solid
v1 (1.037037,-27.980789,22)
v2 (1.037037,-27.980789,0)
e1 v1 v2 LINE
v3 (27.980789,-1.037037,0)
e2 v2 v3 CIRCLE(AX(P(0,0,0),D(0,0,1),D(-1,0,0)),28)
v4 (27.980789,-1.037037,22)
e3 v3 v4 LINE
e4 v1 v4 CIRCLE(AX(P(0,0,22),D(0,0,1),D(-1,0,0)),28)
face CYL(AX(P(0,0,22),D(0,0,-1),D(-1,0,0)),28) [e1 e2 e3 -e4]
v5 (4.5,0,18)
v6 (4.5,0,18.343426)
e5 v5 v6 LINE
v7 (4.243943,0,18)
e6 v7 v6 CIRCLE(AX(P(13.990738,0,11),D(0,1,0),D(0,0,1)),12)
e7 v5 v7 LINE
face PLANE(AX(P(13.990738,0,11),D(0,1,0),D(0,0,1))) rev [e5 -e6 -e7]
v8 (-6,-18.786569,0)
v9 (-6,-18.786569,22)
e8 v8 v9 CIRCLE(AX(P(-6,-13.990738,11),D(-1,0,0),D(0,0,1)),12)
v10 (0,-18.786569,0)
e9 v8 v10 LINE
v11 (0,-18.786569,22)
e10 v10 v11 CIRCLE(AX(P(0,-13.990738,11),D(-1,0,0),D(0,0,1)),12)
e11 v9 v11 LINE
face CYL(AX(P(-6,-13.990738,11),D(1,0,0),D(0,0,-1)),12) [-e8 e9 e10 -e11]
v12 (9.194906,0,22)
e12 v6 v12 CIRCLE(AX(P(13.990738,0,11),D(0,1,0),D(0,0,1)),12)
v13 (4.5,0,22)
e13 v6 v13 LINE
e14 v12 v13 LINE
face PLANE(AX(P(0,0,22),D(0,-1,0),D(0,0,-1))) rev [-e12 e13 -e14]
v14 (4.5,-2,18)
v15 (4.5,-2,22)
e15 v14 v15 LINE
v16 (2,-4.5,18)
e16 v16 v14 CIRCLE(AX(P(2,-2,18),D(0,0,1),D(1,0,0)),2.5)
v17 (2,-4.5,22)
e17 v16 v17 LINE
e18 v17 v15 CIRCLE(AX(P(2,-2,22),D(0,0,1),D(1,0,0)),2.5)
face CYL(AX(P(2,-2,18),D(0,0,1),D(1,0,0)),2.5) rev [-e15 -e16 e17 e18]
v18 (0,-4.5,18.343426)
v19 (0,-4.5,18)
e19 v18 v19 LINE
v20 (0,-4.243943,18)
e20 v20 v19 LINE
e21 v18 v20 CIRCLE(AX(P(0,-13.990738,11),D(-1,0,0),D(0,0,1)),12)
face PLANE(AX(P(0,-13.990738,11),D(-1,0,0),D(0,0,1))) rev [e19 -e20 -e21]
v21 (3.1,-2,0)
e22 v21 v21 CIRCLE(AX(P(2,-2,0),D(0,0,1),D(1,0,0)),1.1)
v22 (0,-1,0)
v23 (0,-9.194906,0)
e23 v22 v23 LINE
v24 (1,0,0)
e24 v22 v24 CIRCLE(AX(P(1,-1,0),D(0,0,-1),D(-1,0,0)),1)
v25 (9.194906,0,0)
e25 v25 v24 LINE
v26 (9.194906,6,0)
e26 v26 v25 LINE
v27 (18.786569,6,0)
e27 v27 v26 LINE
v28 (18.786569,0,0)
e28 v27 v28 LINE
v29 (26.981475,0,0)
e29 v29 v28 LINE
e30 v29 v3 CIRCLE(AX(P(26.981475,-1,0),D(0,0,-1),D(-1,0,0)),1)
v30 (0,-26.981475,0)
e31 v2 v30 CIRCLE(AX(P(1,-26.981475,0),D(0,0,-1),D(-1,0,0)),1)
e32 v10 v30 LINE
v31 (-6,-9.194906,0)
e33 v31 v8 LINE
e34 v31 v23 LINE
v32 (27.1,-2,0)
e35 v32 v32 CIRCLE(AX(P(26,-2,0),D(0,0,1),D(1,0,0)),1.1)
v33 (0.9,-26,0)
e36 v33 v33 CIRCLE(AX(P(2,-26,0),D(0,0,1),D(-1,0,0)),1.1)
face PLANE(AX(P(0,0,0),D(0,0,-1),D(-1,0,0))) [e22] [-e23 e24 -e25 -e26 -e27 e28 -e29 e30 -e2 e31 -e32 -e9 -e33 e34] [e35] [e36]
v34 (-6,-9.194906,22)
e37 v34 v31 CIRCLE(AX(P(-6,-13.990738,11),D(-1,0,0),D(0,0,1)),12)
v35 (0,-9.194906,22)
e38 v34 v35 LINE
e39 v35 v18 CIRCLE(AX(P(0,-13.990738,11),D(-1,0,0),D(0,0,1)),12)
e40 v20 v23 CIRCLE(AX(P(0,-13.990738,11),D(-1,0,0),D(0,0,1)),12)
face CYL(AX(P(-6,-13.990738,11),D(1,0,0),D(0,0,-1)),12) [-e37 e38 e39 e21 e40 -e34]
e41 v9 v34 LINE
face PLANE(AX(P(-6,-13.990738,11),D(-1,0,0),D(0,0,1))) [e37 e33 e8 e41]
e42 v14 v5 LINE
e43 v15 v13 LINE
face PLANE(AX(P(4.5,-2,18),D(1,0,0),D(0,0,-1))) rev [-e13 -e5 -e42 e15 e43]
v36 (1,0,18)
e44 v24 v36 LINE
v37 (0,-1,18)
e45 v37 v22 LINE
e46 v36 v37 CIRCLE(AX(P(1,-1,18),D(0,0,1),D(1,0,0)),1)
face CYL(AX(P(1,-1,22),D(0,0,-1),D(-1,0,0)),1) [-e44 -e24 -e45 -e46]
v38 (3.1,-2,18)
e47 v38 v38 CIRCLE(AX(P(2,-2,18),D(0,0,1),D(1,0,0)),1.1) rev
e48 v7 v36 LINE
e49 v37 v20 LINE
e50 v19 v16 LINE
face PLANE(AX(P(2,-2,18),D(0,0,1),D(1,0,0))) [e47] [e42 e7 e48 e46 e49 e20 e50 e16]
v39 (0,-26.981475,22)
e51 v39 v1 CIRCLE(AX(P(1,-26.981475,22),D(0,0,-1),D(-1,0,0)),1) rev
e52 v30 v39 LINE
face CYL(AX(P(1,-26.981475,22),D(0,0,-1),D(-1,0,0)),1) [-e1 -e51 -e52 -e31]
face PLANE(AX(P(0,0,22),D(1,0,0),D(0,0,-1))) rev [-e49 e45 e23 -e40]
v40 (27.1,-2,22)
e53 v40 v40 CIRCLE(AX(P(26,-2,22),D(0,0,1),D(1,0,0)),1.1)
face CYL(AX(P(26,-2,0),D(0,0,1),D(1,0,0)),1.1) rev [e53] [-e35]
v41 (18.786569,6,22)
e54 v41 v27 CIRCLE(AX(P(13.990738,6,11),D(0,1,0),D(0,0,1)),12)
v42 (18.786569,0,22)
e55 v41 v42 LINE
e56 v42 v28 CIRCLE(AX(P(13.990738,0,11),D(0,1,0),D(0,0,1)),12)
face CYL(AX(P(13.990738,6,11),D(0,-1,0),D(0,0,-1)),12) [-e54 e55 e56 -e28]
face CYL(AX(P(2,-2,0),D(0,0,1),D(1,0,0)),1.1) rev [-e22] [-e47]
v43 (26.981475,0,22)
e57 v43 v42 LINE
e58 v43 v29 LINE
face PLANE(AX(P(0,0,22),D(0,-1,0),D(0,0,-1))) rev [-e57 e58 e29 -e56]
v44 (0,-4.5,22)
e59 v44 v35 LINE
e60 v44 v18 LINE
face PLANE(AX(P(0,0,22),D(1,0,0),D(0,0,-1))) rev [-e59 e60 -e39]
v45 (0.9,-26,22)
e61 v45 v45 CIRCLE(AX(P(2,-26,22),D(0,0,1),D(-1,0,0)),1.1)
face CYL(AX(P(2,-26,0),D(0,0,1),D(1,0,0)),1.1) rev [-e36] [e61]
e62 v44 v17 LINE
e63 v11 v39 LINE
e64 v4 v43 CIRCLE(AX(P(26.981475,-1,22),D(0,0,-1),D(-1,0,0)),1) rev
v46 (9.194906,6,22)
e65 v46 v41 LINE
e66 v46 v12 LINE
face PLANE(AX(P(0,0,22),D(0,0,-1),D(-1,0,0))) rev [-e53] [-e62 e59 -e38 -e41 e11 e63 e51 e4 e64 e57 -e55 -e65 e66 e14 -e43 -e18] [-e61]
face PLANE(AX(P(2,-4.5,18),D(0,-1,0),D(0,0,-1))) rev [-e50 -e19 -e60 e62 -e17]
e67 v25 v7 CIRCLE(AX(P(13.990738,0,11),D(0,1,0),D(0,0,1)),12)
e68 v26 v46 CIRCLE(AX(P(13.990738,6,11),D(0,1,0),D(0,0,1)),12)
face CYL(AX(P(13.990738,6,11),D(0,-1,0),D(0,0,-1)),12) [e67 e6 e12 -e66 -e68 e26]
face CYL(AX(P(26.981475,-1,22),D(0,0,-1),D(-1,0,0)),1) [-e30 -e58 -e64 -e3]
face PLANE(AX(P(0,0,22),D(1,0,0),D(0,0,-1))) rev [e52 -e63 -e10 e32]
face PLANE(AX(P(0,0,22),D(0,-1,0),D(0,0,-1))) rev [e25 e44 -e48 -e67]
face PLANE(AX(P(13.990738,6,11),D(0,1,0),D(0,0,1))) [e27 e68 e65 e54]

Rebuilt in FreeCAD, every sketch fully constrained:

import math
import FreeCAD as App
import Part
import Sketcher

V = App.Vector


def edges_at(feature, points):
    """Names of the edges that pass closest to the given points."""
    edges = feature.Shape.Edges
    near = lambda p: min(range(len(edges)), key=lambda i: edges[i].distToShape(Part.Vertex(*p))[0])
    return sorted({f"Edge{near(p) + 1}" for p in points})

doc = App.newDocument("Part")
body = doc.addObject("PartDesign::Body", "Body")

sketch1 = body.newObject("Sketcher::SketchObject", "Sketch")
sketch1.AttachmentSupport = (doc.getObject("XY_Plane"), [""])
sketch1.MapMode = "FlatFace"
sketch1.addGeometry([
    Part.LineSegment(V(28, 0, 0), V(0, 0, 0)),
    Part.LineSegment(V(0, 0, 0), V(0, -28, 0)),
    Part.ArcOfCircle(Part.Circle(V(0, 0, 0), V(0, 0, 1), 28), math.radians(-90), math.radians(0)),
], False)
sketch1.addConstraint([
    Sketcher.Constraint("Coincident", 0, 2, 1, 1),
    Sketcher.Constraint("Coincident", 1, 2, 2, 1),
    Sketcher.Constraint("Coincident", 2, 2, 0, 1),
    Sketcher.Constraint("Horizontal", 0),
    Sketcher.Constraint("Vertical", 1),
    Sketcher.Constraint("Coincident", 2, 3, -1, 1),
    Sketcher.Constraint("Coincident", 0, 2, -1, 1),
    Sketcher.Constraint("Radius", 2, 28.0),
])
pad1 = body.newObject("PartDesign::Pad", "Pad")
pad1.Profile = sketch1
pad1.Length = 22

sketch2 = body.newObject("Sketcher::SketchObject", "Sketch001")
sketch2.AttachmentSupport = (doc.getObject("XY_Plane"), [""])
sketch2.MapMode = "FlatFace"
sketch2.AttachmentOffset = App.Placement(V(0, 0, 22), App.Rotation())
sketch2.addGeometry([
    Part.Circle(V(2, -2, 0), V(0, 0, 1), 1.1),
    Part.Circle(V(26, -2, 0), V(0, 0, 1), 1.1),
    Part.Circle(V(2, -26, 0), V(0, 0, 1), 1.1),
], False)
sketch2.addConstraint([
    Sketcher.Constraint("Equal", 0, 1),
    Sketcher.Constraint("Equal", 1, 2),
    Sketcher.Constraint("Horizontal", 0, 3, 1, 3),
    Sketcher.Constraint("Vertical", 0, 3, 2, 3),
    Sketcher.Constraint("Diameter", 0, 2.2),
    Sketcher.Constraint("DistanceX", -1, 1, 0, 3, 2.0),
    Sketcher.Constraint("DistanceY", 0, 3, -1, 1, 2.0),
    Sketcher.Constraint("DistanceX", -1, 1, 1, 3, 26.0),
    Sketcher.Constraint("DistanceY", 2, 3, -1, 1, 26.0),
])
pocket1 = body.newObject("PartDesign::Pocket", "Pocket")
pocket1.Profile = sketch2
pocket1.Length = 22

sketch3 = body.newObject("Sketcher::SketchObject", "Sketch002")
sketch3.AttachmentSupport = (doc.getObject("XY_Plane"), [""])
sketch3.MapMode = "FlatFace"
sketch3.AttachmentOffset = App.Placement(V(0, 0, 22), App.Rotation())
sketch3.addGeometry([
    Part.LineSegment(V(4.5, -2, 0), V(4.5, 0.5, 0)),
    Part.LineSegment(V(4.5, 0.5, 0), V(-2.867094, 0.5, 0)),
    Part.LineSegment(V(-2.867094, 0.5, 0), V(-2.867094, -4.5, 0)),
    Part.LineSegment(V(-2.867094, -4.5, 0), V(2, -4.5, 0)),
    Part.ArcOfCircle(Part.Circle(V(2, -2, 0), V(0, 0, 1), 2.5), math.radians(-90), math.radians(0)),
], False)
sketch3.addConstraint([
    Sketcher.Constraint("Coincident", 0, 2, 1, 1),
    Sketcher.Constraint("Coincident", 1, 2, 2, 1),
    Sketcher.Constraint("Coincident", 2, 2, 3, 1),
    Sketcher.Constraint("Tangent", 3, 2, 4, 1),
    Sketcher.Constraint("Tangent", 4, 2, 0, 1),
    Sketcher.Constraint("Vertical", 0),
    Sketcher.Constraint("Horizontal", 1),
    Sketcher.Constraint("Vertical", 2),
    Sketcher.Constraint("Horizontal", 3),
    Sketcher.Constraint("Radius", 4, 2.5),
    Sketcher.Constraint("DistanceY", 2, 2, 2, 1, 5.0),
    Sketcher.Constraint("DistanceX", -1, 1, 4, 3, 2.0),
    Sketcher.Constraint("DistanceY", 4, 3, -1, 1, 2.0),
    Sketcher.Constraint("DistanceX", 1, 2, 1, 1, 7.367094),
])
pocket2 = body.newObject("PartDesign::Pocket", "Pocket001")
pocket2.Profile = sketch3
pocket2.Length = 4
doc.recompute()

fillet = body.newObject("PartDesign::Fillet", "Fillet")
fillet.Base = (pocket2, edges_at(pocket2, [(0, 0, 9), (28, 0, 11), (0, -28, 11)]))
fillet.Radius = 1

sketch4 = body.newObject("Sketcher::SketchObject", "Sketch003")
sketch4.AttachmentSupport = (doc.getObject("YZ_Plane"), [""])
sketch4.MapMode = "FlatFace"
sketch4.addGeometry([
    Part.LineSegment(V(-9.194906, 0, 0), V(-18.786569, 0, 0)),
    Part.ArcOfCircle(Part.Circle(V(-13.990738, 11, 0), V(0, 0, 1), 12), math.radians(113.556464), math.radians(246.443536)),
    Part.LineSegment(V(-18.786569, 22, 0), V(-9.194906, 22, 0)),
    Part.ArcOfCircle(Part.Circle(V(-13.990738, 11, 0), V(0, 0, 1), 12), math.radians(-66.443536), math.radians(66.443536)),
], False)
sketch4.addConstraint([
    Sketcher.Constraint("Coincident", 0, 2, 1, 2),
    Sketcher.Constraint("Coincident", 1, 1, 2, 1),
    Sketcher.Constraint("Coincident", 2, 2, 3, 2),
    Sketcher.Constraint("Coincident", 3, 1, 0, 1),
    Sketcher.Constraint("Horizontal", 0),
    Sketcher.Constraint("Horizontal", 2),
    Sketcher.Constraint("Coincident", 3, 3, 1, 3),
    Sketcher.Constraint("Equal", 1, 3),
    Sketcher.Constraint("PointOnObject", 0, 2, -1),
    Sketcher.Constraint("Vertical", 0, 2, 1, 1),
    Sketcher.Constraint("Radius", 1, 12.0),
    Sketcher.Constraint("DistanceY", -1, 1, 1, 3, 11.0),
    Sketcher.Constraint("DistanceX", 0, 2, -1, 1, 18.786569),
])
pad2 = body.newObject("PartDesign::Pad", "Pad001")
pad2.Profile = sketch4
pad2.Length = 6
pad2.Reversed = True

sketch5 = body.newObject("Sketcher::SketchObject", "Sketch004")
sketch5.AttachmentSupport = (doc.getObject("XZ_Plane"), [""])
sketch5.MapMode = "FlatFace"
sketch5.addGeometry([
    Part.LineSegment(V(18.786569, 0, 0), V(9.194906, 0, 0)),
    Part.ArcOfCircle(Part.Circle(V(13.990738, 11, 0), V(0, 0, 1), 12), math.radians(113.556464), math.radians(246.443536)),
    Part.LineSegment(V(9.194906, 22, 0), V(18.786569, 22, 0)),
    Part.ArcOfCircle(Part.Circle(V(13.990738, 11, 0), V(0, 0, 1), 12), math.radians(-66.443536), math.radians(66.443536)),
], False)
sketch5.addConstraint([
    Sketcher.Constraint("Coincident", 0, 2, 1, 2),
    Sketcher.Constraint("Coincident", 1, 1, 2, 1),
    Sketcher.Constraint("Coincident", 2, 2, 3, 2),
    Sketcher.Constraint("Coincident", 3, 1, 0, 1),
    Sketcher.Constraint("Horizontal", 0),
    Sketcher.Constraint("Horizontal", 2),
    Sketcher.Constraint("Coincident", 3, 3, 1, 3),
    Sketcher.Constraint("Equal", 1, 3),
    Sketcher.Constraint("PointOnObject", 0, 2, -1),
    Sketcher.Constraint("Vertical", 0, 2, 1, 1),
    Sketcher.Constraint("Radius", 1, 12.0),
    Sketcher.Constraint("DistanceY", -1, 1, 1, 3, 11.0),
    Sketcher.Constraint("DistanceX", -1, 1, 2, 2, 18.786569),
])
pad3 = body.newObject("PartDesign::Pad", "Pad002")
pad3.Profile = sketch5
pad3.Length = 6
pad3.Reversed = True

doc.recompute()
